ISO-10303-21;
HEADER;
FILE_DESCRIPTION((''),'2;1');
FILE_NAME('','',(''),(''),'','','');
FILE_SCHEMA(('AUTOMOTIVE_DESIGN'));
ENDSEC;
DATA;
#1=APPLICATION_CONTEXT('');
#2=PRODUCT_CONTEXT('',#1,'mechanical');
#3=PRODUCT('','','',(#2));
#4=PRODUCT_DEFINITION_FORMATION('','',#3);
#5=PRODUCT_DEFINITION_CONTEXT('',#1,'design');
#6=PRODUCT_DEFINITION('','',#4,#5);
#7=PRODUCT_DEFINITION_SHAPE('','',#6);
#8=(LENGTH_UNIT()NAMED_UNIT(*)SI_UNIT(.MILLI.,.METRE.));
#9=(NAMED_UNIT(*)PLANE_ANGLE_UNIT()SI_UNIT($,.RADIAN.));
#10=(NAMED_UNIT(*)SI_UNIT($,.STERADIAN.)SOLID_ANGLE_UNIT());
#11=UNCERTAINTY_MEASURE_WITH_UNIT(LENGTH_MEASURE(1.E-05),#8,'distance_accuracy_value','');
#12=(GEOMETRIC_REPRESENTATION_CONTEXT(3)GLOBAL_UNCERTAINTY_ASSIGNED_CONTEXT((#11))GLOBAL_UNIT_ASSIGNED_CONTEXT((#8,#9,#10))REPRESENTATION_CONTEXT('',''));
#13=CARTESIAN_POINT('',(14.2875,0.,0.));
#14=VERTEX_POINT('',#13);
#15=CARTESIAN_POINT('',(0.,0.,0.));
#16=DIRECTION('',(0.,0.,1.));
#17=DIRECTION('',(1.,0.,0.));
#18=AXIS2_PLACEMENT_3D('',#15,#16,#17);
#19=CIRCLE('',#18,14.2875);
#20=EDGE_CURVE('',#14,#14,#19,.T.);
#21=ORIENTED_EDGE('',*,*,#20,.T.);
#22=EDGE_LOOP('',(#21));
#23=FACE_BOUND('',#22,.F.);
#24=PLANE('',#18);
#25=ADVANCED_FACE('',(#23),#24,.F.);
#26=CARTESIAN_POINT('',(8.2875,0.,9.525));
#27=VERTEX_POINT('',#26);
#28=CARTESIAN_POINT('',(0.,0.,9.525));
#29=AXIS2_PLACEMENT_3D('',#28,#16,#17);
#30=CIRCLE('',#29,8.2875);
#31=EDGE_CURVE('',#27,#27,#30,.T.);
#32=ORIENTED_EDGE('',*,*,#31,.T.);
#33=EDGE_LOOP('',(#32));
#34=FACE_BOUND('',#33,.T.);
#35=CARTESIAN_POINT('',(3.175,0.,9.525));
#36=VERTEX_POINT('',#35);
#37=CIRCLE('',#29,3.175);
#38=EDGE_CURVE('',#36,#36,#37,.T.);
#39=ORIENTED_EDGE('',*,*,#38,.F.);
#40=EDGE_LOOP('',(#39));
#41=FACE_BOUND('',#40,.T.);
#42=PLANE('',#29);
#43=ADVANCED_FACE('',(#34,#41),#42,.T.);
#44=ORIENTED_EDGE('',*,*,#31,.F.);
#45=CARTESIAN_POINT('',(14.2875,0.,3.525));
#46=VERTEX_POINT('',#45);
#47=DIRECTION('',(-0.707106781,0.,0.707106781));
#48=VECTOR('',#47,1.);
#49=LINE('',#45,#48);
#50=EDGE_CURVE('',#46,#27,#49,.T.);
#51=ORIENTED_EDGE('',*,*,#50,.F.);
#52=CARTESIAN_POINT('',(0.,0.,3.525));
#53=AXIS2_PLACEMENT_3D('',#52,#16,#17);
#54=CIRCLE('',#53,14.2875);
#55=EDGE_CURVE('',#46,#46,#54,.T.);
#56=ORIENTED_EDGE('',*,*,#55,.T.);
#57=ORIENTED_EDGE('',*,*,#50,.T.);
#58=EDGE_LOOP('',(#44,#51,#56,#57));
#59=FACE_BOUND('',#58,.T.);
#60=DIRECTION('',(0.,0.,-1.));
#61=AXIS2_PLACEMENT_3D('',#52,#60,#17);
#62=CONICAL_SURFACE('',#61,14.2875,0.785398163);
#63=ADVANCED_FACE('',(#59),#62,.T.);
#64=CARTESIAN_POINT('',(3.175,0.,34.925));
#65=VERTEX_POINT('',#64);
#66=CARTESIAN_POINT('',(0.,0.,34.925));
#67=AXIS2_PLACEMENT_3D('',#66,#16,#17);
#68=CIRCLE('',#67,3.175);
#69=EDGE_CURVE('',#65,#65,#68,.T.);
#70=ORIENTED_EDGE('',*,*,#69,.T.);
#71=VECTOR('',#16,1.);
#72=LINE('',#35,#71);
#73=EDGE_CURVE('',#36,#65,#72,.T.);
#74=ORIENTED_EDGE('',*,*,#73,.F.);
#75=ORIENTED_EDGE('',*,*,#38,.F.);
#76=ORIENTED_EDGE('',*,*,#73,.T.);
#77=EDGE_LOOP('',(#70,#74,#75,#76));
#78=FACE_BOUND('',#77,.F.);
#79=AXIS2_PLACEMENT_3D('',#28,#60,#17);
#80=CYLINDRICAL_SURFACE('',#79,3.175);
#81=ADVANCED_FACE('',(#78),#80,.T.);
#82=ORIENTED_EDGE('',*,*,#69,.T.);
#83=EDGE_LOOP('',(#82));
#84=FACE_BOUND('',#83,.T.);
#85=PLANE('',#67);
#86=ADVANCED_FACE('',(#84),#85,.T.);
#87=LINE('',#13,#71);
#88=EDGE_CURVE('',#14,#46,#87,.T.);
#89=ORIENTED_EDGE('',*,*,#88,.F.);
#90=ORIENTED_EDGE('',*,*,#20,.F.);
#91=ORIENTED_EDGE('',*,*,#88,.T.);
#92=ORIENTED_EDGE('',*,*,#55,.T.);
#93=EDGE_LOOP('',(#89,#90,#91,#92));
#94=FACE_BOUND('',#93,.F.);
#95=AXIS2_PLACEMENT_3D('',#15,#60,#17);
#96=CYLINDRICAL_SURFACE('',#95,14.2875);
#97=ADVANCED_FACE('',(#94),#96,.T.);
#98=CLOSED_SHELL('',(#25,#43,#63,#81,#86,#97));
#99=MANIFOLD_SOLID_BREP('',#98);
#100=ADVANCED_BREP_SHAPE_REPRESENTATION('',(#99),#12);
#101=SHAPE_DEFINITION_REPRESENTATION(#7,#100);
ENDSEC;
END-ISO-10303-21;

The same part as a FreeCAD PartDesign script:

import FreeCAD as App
import Part
import Sketcher

V = App.Vector
Q = App.Units.Quantity


def edges_at(feature, points):
    """Names of the edges that pass closest to the given points."""
    edges = feature.Shape.Edges
    near = lambda p: min(range(len(edges)), key=lambda i: edges[i].distToShape(Part.Vertex(*p))[0])
    return sorted({f"Edge{near(p) + 1}" for p in points})

doc = App.newDocument("Part")
body = doc.addObject("PartDesign::Body", "Body")

sketch1 = body.newObject("Sketcher::SketchObject", "Sketch")
sketch1.AttachmentSupport = (doc.getObject("XY_Plane"), [""])
sketch1.MapMode = "FlatFace"
sketch1.addGeometry(Part.Circle(V(0, 0, 0), V(0, 0, 1), 14), False)
sketch1.addConstraint(Sketcher.Constraint("Coincident", 0, 3, -1, 1))
sketch1.addConstraint(Sketcher.Constraint("Diameter", 0, Q("1.125 in")))
pad1 = body.newObject("PartDesign::Pad", "Pad")
pad1.Profile = sketch1
pad1.Length = Q("0.375 in")

sketch2 = body.newObject("Sketcher::SketchObject", "Sketch001")
sketch2.AttachmentSupport = (doc.getObject("XY_Plane"), [""])
sketch2.MapMode = "FlatFace"
sketch2.AttachmentOffset = App.Placement(V(0, 0, 0.375 * 25.4), App.Rotation())
sketch2.addGeometry(Part.Circle(V(0, 0, 0), V(0, 0, 1), 3.2), False)
sketch2.addConstraint(Sketcher.Constraint("Coincident", 0, 3, -1, 1))
sketch2.addConstraint(Sketcher.Constraint("Diameter", 0, Q("0.25 in")))
pad2 = body.newObject("PartDesign::Pad", "Pad001")
pad2.Profile = sketch2
pad2.Length = Q("1 in")
doc.recompute()

chamfer = body.newObject("PartDesign::Chamfer", "Chamfer")
chamfer.Base = (pad2, edges_at(pad2, [(-14.287, 0, 9.525)]))
chamfer.Size = 6

doc.recompute()
